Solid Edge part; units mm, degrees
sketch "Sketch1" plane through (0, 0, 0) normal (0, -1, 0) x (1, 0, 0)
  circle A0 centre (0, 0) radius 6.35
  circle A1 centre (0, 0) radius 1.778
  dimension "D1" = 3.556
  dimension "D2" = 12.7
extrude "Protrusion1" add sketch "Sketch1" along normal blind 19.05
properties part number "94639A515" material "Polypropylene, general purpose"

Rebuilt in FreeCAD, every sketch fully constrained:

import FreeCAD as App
import Part
import Sketcher

V = App.Vector
Q = App.Units.Quantity

doc = App.newDocument("Part")
body = doc.addObject("PartDesign::Body", "Body")

sketch1 = body.newObject("Sketcher::SketchObject", "Sketch")
sketch1.AttachmentSupport = (doc.getObject("XZ_Plane"), [""])
sketch1.MapMode = "FlatFace"
sketch1.addGeometry(Part.Circle(V(0, 0, 0), V(0, 0, 1), 6.3), False)
sketch1.addGeometry(Part.Circle(V(0, 0, 0), V(0, 0, 1), 1.8), False)
sketch1.addConstraint(Sketcher.Constraint("Coincident", 0, 3, -1, 1))
sketch1.addConstraint(Sketcher.Constraint("Coincident", 1, 3, -1, 1))
sketch1.addConstraint(Sketcher.Constraint("Diameter", 0, Q("0.5 in")))
sketch1.addConstraint(Sketcher.Constraint("Diameter", 1, Q("0.14 in")))
pad1 = body.newObject("PartDesign::Pad", "Pad")
pad1.Profile = sketch1
pad1.Length = Q("0.75 in")

doc.recompute()
